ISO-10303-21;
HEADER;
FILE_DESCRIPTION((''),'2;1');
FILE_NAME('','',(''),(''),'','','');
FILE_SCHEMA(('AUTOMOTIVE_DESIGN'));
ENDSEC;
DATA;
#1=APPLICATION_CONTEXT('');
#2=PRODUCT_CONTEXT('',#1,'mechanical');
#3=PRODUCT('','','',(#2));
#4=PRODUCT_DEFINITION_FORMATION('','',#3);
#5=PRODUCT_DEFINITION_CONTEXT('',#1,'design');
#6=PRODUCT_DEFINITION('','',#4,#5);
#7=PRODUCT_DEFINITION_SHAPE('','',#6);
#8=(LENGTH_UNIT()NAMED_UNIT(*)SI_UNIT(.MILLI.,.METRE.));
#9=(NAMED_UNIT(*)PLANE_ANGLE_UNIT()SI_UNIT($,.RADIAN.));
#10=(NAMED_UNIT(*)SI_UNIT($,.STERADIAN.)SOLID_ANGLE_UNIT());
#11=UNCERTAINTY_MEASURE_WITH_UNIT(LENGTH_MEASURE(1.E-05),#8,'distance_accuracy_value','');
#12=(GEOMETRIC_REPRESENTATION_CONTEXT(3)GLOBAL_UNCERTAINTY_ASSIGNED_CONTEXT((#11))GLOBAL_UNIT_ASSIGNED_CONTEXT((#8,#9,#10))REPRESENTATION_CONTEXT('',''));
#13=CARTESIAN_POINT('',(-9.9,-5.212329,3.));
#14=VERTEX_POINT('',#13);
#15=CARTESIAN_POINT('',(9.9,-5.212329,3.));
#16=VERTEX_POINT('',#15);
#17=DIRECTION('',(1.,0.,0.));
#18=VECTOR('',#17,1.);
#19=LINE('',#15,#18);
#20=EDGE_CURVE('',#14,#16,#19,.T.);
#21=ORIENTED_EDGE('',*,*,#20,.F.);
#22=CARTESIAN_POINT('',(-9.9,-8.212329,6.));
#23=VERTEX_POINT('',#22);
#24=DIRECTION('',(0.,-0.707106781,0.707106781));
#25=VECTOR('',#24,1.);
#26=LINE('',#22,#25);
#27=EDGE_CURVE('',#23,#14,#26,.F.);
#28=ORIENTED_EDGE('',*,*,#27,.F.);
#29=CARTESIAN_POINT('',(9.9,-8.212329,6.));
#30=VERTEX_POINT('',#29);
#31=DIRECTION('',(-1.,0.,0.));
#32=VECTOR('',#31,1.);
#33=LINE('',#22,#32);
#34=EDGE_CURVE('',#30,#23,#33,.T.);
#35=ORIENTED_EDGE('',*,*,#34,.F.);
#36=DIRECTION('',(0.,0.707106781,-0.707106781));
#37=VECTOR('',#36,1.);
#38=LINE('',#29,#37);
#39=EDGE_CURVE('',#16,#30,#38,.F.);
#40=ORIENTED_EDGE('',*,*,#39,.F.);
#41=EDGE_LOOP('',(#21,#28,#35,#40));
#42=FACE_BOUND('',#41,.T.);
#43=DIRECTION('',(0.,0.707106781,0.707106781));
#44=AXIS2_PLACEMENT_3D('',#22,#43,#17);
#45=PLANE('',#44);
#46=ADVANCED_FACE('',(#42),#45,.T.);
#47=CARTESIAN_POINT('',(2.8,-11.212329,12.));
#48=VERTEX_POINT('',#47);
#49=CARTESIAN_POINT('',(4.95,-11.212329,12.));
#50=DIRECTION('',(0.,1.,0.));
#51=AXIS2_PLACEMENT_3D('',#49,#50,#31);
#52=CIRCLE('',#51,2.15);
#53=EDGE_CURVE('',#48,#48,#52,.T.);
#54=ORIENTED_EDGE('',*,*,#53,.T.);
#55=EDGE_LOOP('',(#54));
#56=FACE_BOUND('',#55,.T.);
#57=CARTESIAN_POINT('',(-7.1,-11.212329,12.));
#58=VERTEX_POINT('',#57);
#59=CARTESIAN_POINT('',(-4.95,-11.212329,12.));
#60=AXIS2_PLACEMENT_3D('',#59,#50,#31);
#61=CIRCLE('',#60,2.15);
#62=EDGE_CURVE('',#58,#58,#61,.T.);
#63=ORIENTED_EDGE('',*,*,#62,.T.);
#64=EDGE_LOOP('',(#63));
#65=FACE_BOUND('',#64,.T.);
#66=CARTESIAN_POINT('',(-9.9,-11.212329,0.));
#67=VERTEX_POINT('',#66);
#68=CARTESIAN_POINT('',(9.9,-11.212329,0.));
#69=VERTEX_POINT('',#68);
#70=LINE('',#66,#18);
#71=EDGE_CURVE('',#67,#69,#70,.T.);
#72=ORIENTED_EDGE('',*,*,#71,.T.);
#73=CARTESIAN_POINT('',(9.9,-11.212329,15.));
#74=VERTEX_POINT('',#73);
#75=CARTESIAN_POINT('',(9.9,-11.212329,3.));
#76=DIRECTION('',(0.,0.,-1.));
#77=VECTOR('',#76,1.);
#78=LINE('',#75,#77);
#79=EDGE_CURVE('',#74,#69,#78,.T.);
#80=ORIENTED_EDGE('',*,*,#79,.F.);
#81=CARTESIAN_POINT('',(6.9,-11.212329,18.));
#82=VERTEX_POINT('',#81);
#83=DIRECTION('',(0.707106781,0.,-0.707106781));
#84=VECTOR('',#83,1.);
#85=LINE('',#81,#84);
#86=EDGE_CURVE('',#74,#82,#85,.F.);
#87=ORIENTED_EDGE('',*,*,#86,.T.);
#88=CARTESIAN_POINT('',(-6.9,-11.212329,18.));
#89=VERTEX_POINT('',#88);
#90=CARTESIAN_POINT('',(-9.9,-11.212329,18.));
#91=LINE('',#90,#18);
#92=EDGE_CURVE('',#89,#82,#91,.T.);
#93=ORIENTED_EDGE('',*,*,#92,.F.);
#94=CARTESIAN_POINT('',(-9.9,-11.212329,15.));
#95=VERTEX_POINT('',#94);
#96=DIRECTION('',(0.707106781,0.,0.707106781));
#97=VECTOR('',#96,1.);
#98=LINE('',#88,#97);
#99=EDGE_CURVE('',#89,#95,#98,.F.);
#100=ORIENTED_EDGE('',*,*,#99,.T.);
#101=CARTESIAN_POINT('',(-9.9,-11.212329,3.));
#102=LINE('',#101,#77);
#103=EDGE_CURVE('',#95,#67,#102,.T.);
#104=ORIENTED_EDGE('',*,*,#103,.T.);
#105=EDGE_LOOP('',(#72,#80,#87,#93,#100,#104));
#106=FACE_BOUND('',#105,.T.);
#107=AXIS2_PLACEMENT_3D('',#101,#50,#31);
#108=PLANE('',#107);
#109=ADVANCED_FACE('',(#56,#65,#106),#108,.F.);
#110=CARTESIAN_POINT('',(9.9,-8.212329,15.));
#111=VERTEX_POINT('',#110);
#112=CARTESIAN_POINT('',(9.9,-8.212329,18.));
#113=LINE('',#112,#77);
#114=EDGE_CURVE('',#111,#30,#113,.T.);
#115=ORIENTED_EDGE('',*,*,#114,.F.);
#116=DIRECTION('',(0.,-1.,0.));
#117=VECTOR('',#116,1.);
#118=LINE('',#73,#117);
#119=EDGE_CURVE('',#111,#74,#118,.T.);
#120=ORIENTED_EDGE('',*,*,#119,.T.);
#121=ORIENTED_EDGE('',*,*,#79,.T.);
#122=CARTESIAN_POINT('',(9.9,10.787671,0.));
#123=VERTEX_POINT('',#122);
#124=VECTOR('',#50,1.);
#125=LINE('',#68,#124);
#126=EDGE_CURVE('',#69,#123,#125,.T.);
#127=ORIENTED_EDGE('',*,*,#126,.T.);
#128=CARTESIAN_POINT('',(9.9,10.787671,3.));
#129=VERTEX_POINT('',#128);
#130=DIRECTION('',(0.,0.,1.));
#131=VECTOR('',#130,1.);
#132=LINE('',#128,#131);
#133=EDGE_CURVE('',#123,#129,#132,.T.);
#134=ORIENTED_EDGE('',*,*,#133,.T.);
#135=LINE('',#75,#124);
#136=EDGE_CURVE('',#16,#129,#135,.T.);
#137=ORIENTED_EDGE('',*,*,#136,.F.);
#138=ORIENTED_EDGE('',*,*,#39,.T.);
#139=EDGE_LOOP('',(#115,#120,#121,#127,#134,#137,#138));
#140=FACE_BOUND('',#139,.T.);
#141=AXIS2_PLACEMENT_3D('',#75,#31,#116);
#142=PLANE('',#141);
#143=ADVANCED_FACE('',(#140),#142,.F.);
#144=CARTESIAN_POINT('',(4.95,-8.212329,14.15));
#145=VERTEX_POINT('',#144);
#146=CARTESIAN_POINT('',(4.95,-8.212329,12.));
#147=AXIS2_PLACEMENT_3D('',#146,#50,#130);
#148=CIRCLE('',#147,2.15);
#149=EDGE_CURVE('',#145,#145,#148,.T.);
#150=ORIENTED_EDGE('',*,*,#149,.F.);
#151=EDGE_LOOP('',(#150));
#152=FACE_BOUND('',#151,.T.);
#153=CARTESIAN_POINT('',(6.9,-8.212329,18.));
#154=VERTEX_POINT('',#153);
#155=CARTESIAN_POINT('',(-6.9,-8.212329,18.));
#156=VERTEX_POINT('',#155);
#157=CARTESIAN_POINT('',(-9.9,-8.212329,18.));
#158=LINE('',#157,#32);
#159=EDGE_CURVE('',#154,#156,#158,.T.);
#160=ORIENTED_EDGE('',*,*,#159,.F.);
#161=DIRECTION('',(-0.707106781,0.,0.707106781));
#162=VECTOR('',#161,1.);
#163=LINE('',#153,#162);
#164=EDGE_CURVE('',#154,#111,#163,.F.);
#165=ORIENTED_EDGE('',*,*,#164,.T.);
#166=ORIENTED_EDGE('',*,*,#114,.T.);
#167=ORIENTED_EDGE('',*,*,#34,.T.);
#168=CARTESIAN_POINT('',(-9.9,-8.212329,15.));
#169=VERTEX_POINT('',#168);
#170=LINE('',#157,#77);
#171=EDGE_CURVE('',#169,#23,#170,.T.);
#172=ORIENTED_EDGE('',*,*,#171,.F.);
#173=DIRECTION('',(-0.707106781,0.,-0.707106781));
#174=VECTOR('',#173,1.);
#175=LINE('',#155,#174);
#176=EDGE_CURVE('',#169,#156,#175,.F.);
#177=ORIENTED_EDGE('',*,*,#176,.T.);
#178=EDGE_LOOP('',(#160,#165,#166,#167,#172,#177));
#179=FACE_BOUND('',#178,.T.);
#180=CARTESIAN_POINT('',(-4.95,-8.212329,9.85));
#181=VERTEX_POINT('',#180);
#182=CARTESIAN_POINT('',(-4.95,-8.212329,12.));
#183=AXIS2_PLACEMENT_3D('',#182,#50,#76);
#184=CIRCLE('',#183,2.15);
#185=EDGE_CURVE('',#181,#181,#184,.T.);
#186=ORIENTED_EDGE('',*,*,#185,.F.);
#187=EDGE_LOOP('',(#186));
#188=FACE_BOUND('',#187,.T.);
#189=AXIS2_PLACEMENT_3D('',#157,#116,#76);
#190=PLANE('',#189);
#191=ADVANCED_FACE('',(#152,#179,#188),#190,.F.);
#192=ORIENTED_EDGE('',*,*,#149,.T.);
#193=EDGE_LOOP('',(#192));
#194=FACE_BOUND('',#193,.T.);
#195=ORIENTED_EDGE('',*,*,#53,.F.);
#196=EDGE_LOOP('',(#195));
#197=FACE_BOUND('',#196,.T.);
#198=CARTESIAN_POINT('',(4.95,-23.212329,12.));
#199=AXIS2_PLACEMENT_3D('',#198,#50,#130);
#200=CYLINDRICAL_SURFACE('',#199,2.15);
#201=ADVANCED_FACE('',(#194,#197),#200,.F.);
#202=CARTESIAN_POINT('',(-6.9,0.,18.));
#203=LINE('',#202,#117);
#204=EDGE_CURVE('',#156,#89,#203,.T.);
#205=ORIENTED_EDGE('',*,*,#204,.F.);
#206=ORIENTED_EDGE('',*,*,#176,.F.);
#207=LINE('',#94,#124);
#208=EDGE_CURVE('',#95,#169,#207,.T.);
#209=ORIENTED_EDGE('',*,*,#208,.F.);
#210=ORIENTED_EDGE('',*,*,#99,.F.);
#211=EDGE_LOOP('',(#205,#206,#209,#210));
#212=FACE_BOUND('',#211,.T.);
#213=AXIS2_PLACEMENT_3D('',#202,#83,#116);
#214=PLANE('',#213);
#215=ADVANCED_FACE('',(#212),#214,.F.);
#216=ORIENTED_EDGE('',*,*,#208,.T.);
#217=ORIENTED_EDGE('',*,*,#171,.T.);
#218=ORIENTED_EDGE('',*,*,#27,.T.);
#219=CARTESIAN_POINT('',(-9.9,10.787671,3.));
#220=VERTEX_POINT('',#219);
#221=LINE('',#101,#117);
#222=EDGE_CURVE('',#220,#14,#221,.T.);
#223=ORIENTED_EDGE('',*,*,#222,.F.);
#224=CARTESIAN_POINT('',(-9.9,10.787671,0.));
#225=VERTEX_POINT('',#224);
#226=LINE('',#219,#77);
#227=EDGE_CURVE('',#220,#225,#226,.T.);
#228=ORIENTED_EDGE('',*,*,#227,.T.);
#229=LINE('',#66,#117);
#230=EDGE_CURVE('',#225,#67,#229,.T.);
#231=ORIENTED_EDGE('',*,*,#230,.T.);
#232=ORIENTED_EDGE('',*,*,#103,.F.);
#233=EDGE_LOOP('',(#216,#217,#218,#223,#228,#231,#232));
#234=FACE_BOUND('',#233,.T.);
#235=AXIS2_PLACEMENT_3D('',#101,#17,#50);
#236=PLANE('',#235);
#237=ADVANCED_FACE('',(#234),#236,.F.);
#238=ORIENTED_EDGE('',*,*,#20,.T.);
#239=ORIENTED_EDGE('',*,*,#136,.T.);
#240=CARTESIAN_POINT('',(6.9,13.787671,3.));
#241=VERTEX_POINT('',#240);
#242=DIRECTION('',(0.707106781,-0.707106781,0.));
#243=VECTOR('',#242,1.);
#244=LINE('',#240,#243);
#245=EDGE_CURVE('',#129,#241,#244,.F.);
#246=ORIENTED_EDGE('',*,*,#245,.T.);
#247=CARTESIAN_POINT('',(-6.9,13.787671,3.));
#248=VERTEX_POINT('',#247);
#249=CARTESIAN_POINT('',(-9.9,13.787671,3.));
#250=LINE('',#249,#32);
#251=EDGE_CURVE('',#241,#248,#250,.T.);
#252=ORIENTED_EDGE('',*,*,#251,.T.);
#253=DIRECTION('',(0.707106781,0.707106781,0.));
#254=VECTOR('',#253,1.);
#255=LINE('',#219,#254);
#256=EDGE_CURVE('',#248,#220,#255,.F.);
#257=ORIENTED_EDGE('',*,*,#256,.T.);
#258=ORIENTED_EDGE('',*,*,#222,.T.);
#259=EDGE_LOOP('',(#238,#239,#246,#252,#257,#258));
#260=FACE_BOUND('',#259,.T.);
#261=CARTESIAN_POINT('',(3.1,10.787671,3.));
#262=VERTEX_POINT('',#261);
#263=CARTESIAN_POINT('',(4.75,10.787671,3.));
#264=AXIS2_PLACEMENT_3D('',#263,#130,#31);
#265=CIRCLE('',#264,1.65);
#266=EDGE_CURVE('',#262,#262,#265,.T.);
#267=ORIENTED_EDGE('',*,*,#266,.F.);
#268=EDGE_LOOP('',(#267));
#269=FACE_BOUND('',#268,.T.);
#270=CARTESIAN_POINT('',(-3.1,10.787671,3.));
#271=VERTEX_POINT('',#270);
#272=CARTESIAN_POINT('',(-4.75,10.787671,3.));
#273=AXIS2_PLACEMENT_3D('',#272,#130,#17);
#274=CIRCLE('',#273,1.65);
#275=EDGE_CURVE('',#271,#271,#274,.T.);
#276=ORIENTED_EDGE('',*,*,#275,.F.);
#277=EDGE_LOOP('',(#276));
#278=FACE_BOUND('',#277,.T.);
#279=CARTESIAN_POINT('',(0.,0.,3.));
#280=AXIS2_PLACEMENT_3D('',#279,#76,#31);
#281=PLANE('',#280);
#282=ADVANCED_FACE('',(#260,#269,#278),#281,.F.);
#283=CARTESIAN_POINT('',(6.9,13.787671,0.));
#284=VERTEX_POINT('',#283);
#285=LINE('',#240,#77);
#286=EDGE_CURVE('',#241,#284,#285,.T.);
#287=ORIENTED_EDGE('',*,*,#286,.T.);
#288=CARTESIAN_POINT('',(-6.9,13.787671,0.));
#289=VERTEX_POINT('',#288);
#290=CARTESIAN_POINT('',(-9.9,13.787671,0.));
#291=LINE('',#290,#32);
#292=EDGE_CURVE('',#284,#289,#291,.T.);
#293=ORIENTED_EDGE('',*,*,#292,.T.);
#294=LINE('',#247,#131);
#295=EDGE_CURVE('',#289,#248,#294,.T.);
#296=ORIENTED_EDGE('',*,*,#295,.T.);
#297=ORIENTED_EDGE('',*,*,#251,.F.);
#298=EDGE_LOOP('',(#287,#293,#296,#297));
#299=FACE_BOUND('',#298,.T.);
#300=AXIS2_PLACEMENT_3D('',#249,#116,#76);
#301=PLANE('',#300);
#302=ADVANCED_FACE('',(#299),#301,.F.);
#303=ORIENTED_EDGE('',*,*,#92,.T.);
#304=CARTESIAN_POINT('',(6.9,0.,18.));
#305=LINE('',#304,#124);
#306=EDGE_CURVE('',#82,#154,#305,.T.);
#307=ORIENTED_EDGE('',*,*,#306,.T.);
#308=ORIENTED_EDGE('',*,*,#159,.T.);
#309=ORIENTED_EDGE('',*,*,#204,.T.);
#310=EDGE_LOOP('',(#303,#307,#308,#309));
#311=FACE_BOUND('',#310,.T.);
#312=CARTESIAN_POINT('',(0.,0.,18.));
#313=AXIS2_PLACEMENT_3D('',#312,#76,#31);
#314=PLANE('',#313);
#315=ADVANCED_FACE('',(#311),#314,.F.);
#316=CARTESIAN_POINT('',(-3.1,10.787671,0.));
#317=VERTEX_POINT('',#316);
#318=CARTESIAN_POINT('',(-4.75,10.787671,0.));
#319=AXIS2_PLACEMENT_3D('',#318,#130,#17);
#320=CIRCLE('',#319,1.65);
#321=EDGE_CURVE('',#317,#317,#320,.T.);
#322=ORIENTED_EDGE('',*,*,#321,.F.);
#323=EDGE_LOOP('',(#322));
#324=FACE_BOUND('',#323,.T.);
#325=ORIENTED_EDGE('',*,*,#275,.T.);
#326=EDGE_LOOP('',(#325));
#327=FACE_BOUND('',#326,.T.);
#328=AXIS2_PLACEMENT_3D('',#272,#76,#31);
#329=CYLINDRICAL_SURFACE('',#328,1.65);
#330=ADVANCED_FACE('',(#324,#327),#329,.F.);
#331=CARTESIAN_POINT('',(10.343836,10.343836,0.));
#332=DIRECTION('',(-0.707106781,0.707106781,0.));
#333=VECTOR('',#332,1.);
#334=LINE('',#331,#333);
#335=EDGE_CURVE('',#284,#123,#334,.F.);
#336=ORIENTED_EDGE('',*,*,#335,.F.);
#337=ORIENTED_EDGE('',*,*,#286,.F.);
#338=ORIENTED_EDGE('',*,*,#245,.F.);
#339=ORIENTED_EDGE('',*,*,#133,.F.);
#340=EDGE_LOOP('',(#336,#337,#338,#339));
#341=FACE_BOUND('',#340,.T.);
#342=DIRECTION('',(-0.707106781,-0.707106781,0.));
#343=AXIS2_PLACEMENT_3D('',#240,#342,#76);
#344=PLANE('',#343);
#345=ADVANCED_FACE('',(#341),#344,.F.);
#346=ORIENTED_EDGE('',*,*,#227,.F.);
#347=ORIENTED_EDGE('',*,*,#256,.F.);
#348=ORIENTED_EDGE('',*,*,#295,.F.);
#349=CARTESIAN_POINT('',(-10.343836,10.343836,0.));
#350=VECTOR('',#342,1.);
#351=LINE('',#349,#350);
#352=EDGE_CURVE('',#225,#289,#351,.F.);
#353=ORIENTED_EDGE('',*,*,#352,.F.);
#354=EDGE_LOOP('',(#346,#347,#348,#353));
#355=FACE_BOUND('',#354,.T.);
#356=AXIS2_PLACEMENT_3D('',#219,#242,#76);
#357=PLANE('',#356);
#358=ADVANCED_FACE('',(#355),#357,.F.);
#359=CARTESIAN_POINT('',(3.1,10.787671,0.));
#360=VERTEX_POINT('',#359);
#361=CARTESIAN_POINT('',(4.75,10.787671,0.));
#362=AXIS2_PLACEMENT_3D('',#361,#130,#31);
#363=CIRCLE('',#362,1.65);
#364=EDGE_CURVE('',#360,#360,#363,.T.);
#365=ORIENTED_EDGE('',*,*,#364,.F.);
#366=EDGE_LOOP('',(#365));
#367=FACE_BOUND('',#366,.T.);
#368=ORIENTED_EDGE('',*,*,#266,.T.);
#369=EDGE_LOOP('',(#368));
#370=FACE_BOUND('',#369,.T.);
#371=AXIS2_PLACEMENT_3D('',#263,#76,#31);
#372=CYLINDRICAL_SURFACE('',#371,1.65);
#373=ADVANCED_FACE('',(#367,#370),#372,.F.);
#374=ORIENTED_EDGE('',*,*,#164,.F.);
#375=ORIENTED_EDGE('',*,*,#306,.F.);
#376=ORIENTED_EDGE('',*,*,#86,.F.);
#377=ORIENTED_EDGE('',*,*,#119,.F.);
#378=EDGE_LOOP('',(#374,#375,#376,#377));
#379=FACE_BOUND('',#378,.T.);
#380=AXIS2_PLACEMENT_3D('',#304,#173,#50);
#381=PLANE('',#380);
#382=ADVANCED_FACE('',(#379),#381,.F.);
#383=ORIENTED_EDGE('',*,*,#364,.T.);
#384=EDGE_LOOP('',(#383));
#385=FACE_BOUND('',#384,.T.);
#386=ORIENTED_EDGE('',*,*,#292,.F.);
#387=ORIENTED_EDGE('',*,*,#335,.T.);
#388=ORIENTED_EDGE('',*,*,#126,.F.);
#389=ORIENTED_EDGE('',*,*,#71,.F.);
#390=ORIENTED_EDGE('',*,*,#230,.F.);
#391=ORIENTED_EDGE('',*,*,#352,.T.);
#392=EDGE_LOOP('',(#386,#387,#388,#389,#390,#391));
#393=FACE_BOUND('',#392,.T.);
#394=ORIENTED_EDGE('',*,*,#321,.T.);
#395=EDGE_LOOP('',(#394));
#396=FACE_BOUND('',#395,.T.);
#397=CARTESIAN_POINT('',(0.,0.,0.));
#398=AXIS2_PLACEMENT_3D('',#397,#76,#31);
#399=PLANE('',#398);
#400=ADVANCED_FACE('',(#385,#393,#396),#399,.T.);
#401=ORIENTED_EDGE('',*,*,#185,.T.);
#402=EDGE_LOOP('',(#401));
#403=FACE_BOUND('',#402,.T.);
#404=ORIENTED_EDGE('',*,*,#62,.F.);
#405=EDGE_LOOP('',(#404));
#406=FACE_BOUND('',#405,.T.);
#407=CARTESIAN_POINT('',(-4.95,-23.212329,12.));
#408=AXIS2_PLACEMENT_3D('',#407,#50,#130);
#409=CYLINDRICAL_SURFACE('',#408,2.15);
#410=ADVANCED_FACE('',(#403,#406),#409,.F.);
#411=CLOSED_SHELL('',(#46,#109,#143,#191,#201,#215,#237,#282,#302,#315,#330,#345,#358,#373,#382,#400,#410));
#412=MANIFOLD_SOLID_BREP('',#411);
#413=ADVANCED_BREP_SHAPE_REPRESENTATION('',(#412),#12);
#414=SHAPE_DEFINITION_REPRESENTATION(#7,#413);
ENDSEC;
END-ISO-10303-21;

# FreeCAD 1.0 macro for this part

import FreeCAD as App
import Part
import Sketcher
from FreeCAD import Vector
Q = App.Units.Quantity


def edges_at(feature, points):
    """Names of the edges that pass closest to the given points."""
    edges = feature.Shape.Edges
    near = lambda p: min(range(len(edges)), key=lambda i: edges[i].distToShape(Part.Vertex(*p))[0])
    return sorted({f"Edge{near(p) + 1}" for p in points})

doc = App.newDocument("Part")
body = doc.addObject("PartDesign::Body", "Body")

# Sketch on XY plane
sketch1 = body.newObject("Sketcher::SketchObject", "Sketch")
sketch1.AttachmentSupport = (doc.getObject("XY_Plane"), [""])
sketch1.MapMode = "FlatFace"
sketch1.addGeometry(Part.LineSegment(Vector(-9.9, 13.8, 0), Vector(-9.9, -11.2, 0)), False)
sketch1.addGeometry(Part.LineSegment(Vector(-9.9, -11.2, 0), Vector(9.9, -11.2, 0)), False)
sketch1.addGeometry(Part.LineSegment(Vector(9.9, -11.2, 0), Vector(9.9, 13.8, 0)), False)
sketch1.addGeometry(Part.LineSegment(Vector(9.9, 13.8, 0), Vector(-9.9, 13.8, 0)), False)
sketch1.addGeometry(Part.Circle(Vector(-4.8, 10.8, 0), Vector(0, 0, 1), 1.6), False)
sketch1.addGeometry(Part.Circle(Vector(4.8, 10.8, 0), Vector(0, 0, 1), 1.6), False)
sketch1.addConstraint(Sketcher.Constraint("Coincident", 0, 2, 1, 1))
sketch1.addConstraint(Sketcher.Constraint("Coincident", 1, 2, 2, 1))
sketch1.addConstraint(Sketcher.Constraint("Coincident", 2, 2, 3, 1))
sketch1.addConstraint(Sketcher.Constraint("Coincident", 3, 2, 0, 1))
sketch1.addConstraint(Sketcher.Constraint("Vertical", 0))
sketch1.addConstraint(Sketcher.Constraint("Horizontal", 1))
sketch1.addConstraint(Sketcher.Constraint("Vertical", 2))
sketch1.addConstraint(Sketcher.Constraint("Horizontal", 3))
sketch1.addConstraint(Sketcher.Constraint("Equal", 4, 5))
sketch1.addConstraint(Sketcher.Constraint("Symmetric", 4, 3, 5, 3, -2))
sketch1.addConstraint(Sketcher.Constraint("Diameter", 4, Q("3.3 mm")))
sketch1.addConstraint(Sketcher.Constraint("DistanceY", 0, 2, 0, 1, Q("25 mm")))
sketch1.addConstraint(Sketcher.Constraint("DistanceX", 1, 1, 1, 2, Q("19.8 mm")))
sketch1.addConstraint(Sketcher.Constraint("DistanceY", 0, 2, 4, 3, Q("22 mm")))
sketch1.addConstraint(Sketcher.Constraint("DistanceX", 0, 2, -1, 1, Q("9.9 mm")))
sketch1.addConstraint(Sketcher.Constraint("DistanceX", 4, 3, 5, 3, Q("9.5 mm")))
sketch1.addConstraint(Sketcher.Constraint("DistanceY", -1, 1, 4, 3, Q("10.787671 mm")))
pad1 = body.newObject("PartDesign::Pad", "Pad")
pad1.Profile = sketch1
pad1.Length = 3

# Sketch on XY plane
sketch2 = body.newObject("Sketcher::SketchObject", "Sketch001")
sketch2.AttachmentSupport = (doc.getObject("XY_Plane"), [""])
sketch2.MapMode = "FlatFace"
sketch2.AttachmentOffset = App.Placement(Vector(0, 0, 3), App.Rotation())
sketch2.addGeometry(Part.LineSegment(Vector(-9.9, -8.2, 0), Vector(-9.9, -11.2, 0)), False)
sketch2.addGeometry(Part.LineSegment(Vector(-9.9, -11.2, 0), Vector(9.9, -11.2, 0)), False)
sketch2.addGeometry(Part.LineSegment(Vector(9.9, -11.2, 0), Vector(9.9, -8.2, 0)), False)
sketch2.addGeometry(Part.LineSegment(Vector(9.9, -8.2, 0), Vector(-9.9, -8.2, 0)), False)
sketch2.addConstraint(Sketcher.Constraint("Coincident", 0, 2, 1, 1))
sketch2.addConstraint(Sketcher.Constraint("Coincident", 1, 2, 2, 1))
sketch2.addConstraint(Sketcher.Constraint("Coincident", 2, 2, 3, 1))
sketch2.addConstraint(Sketcher.Constraint("Coincident", 3, 2, 0, 1))
sketch2.addConstraint(Sketcher.Constraint("Vertical", 0))
sketch2.addConstraint(Sketcher.Constraint("Horizontal", 1))
sketch2.addConstraint(Sketcher.Constraint("Vertical", 2))
sketch2.addConstraint(Sketcher.Constraint("Horizontal", 3))
sketch2.addConstraint(Sketcher.Constraint("DistanceY", 0, 2, 0, 1, Q("3 mm")))
sketch2.addConstraint(Sketcher.Constraint("DistanceX", 1, 1, 1, 2, Q("19.8 mm")))
sketch2.addConstraint(Sketcher.Constraint("DistanceX", 0, 2, -1, 1, Q("9.9 mm")))
sketch2.addConstraint(Sketcher.Constraint("DistanceY", 0, 2, -1, 1, Q("11.212329 mm")))
pad2 = body.newObject("PartDesign::Pad", "Pad001")
pad2.Profile = sketch2
pad2.Length = 15
doc.recompute()

chamfer = body.newObject("PartDesign::Chamfer", "Chamfer")
chamfer.Base = (pad2, edges_at(pad2, [(0, -8.212, 3), (-9.9, 13.788, 1.5), (9.9, 13.788, 1.5)]))
chamfer.Size = 3

# Sketch on XZ plane
sketch3 = body.newObject("Sketcher::SketchObject", "Sketch002")
sketch3.AttachmentSupport = (doc.getObject("XZ_Plane"), [""])
sketch3.MapMode = "FlatFace"
sketch3.AttachmentOffset = App.Placement(Vector(0, 0, 8.212329), App.Rotation())
sketch3.addGeometry(Part.Circle(Vector(5, 12, 0), Vector(0, 0, 1), 2.1), False)
sketch3.addGeometry(Part.Circle(Vector(-5, 12, 0), Vector(0, 0, 1), 2.1), False)
sketch3.addConstraint(Sketcher.Constraint("Equal", 0, 1))
sketch3.addConstraint(Sketcher.Constraint("Symmetric", 0, 3, 1, 3, -2))
sketch3.addConstraint(Sketcher.Constraint("Diameter", 0, Q("4.3 mm")))
sketch3.addConstraint(Sketcher.Constraint("DistanceY", -1, 1, 0, 3, Q("12 mm")))
sketch3.addConstraint(Sketcher.Constraint("DistanceX", 1, 3, 0, 3, Q("9.9 mm")))
pocket1 = body.newObject("PartDesign::Pocket", "Pocket")
pocket1.Profile = sketch3
pocket1.Length = 15
pocket1.Reversed = True
doc.recompute()

chamfer2 = body.newObject("PartDesign::Chamfer", "Chamfer001")
chamfer2.Base = (pocket1, edges_at(pocket1, [(-9.9, -9.712, 18), (9.9, -9.712, 18)]))
chamfer2.Size = 3

doc.recompute()
